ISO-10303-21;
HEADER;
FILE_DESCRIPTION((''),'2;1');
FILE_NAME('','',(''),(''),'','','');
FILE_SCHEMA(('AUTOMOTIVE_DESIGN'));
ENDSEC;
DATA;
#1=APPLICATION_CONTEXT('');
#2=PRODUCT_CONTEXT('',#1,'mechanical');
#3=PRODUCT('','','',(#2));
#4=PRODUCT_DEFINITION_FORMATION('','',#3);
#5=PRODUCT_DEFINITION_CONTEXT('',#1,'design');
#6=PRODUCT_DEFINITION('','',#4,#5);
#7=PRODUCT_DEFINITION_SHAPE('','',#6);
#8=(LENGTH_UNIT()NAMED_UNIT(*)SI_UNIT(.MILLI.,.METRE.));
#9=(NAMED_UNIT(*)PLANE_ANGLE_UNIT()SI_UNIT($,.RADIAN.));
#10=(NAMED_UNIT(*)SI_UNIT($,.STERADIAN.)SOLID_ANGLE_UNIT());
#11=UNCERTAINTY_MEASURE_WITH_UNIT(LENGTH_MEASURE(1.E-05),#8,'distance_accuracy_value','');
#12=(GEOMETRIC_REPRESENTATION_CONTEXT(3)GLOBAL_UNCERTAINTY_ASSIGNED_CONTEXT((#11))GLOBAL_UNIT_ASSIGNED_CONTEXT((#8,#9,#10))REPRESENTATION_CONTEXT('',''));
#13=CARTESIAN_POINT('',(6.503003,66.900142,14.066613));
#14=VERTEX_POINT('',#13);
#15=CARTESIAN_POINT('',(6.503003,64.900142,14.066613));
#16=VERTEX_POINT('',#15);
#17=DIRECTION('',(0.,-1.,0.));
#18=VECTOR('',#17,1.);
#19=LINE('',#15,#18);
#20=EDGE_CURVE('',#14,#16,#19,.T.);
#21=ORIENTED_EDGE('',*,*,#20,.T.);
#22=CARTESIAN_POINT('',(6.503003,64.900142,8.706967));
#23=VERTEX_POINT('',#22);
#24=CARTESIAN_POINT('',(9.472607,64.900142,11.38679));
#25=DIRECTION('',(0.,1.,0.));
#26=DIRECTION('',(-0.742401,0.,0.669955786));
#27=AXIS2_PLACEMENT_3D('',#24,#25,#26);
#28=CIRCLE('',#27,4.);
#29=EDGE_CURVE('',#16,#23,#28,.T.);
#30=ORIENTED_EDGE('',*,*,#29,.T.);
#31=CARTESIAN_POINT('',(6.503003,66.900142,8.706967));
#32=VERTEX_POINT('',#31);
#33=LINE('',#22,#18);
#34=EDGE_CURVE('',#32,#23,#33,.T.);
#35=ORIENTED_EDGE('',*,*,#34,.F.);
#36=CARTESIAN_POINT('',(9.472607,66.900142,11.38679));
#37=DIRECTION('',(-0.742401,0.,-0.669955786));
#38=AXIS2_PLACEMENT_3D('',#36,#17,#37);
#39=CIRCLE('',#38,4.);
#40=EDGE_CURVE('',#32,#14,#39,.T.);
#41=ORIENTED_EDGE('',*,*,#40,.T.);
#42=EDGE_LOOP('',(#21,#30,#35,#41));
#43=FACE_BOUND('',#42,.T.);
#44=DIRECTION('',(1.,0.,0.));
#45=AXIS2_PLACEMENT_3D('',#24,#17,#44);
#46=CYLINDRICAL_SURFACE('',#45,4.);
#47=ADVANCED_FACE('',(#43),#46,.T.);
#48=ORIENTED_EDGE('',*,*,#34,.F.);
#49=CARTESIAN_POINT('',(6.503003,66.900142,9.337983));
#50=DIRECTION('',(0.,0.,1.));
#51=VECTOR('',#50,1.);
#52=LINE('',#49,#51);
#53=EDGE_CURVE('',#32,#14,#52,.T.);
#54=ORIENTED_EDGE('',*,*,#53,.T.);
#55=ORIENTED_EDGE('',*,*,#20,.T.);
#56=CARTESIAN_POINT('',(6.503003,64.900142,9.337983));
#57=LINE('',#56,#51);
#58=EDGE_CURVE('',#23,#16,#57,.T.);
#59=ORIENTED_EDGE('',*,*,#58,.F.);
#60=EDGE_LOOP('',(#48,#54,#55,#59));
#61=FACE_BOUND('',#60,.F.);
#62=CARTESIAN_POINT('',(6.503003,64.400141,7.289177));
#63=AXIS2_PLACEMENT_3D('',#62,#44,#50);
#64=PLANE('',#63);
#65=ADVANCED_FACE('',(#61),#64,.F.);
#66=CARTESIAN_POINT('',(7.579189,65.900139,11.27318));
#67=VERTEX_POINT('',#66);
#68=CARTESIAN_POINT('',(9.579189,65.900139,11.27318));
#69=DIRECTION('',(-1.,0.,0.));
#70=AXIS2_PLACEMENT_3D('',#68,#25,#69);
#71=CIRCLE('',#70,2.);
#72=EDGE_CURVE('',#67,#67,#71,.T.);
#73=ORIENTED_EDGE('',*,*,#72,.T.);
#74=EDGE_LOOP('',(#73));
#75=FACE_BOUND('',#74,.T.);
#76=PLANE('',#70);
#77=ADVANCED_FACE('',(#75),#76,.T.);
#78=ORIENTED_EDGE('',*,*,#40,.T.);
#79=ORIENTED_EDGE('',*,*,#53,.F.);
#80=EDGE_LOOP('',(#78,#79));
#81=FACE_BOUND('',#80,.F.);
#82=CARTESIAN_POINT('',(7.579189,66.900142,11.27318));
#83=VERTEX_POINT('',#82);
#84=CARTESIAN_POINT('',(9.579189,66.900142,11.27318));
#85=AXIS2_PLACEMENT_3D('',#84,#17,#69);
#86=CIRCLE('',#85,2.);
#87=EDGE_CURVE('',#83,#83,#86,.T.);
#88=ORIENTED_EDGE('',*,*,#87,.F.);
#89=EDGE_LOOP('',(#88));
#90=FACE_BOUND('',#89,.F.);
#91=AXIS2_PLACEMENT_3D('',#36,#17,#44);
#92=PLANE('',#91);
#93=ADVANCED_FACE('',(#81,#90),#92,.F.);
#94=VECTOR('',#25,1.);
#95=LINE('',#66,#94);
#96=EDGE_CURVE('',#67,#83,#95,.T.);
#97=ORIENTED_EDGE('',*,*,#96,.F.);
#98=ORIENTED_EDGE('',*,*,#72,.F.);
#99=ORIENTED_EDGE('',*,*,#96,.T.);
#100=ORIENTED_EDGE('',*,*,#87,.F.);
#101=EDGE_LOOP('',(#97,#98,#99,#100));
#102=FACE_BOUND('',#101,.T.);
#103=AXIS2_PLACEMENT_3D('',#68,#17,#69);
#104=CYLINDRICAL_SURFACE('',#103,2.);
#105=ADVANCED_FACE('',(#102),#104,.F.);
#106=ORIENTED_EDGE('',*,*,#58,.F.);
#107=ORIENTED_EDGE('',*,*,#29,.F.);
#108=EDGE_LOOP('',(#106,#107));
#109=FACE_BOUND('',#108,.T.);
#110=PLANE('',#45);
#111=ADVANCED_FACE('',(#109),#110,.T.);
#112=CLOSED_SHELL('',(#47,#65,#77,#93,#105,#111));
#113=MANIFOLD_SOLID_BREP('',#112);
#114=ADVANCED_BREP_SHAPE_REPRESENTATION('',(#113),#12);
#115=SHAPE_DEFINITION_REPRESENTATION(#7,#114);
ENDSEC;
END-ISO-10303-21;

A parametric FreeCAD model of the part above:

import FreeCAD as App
import Part
import Sketcher
Q = App.Units.Quantity

doc = App.newDocument("Part")
params = doc.addObject("Spreadsheet::Sheet", "Params")
for row, (alias, value) in enumerate([
    ("sketch1_diameter", "4 mm"),
    ("pad1_length", "2 mm"),
    ("pad2_length", "3 mm"),
    ("sketch3_diameter", "8 mm"),
    ("pad3_length", "2 mm"),
], start=1):
    params.set(f"A{row}", alias)
    params.set(f"B{row}", "=" + value)
    params.setAlias(f"B{row}", alias)

body = doc.addObject("PartDesign::Body", "Body")

sketch1 = body.newObject("Sketcher::SketchObject", "Sketch")
sketch1.AttachmentSupport = (doc.getObject("XY_Plane"), [""])
sketch1.MapMode = "FlatFace"
sketch1.addGeometry(Part.Circle(App.Vector(0, 0, 0), App.Vector(0, 0, 1), 2), False)
sketch1.addConstraint([
    Sketcher.Constraint("Coincident", 0, 3, -1, 1),
    Sketcher.Constraint("Diameter", 0, Q("4 mm")),
])
sketch1.setExpression("Constraints[1]", "Params.sketch1_diameter")
pad1 = body.newObject("PartDesign::Pad", "Pad")
pad1.Profile = sketch1
pad1.setExpression("Length", "Params.pad1_length")
body2 = doc.addObject("PartDesign::Body", "Body001")
doc.recompute()

body.Placement = App.Placement(App.Vector(0, 0, 0), App.Rotation(App.Vector(1, 0, 0), 90))
boolean = body2.newObject("PartDesign::Boolean", "Boolean")
boolean.Type = "Fuse"
boolean.addObjects([body])
body3 = doc.addObject("PartDesign::Body", "Body002")
doc.recompute()

body2.Placement = App.Placement(App.Vector(9.579189, 64.900139, 11.27318), App.Rotation(App.Vector(0, 0, 1), 180))
boolean2 = body3.newObject("PartDesign::Boolean", "Boolean001")
boolean2.Type = "Fuse"
boolean2.addObjects([body2])
body4 = doc.addObject("PartDesign::Body", "Body003")
doc.recompute()

body3.Placement = App.Placement(App.Vector(0, 1, 0), App.Rotation(App.Vector(0, 0, 1), 0))
boolean3 = body4.newObject("PartDesign::Boolean", "Boolean002")
boolean3.Type = "Fuse"
boolean3.addObjects([body3])
body5 = doc.addObject("PartDesign::Body", "Body004")

sketch2 = body5.newObject("Sketcher::SketchObject", "Sketch001")
sketch2.AttachmentSupport = (doc.getObject("XY_Plane004"), [""])
sketch2.MapMode = "FlatFace"
sketch2.addGeometry([
    Part.LineSegment(App.Vector(-5, 0, 0), App.Vector(-5, -8, 0)),
    Part.LineSegment(App.Vector(-5, -8, 0), App.Vector(0, -8, 0)),
    Part.LineSegment(App.Vector(0, -8, 0), App.Vector(0, 0, 0)),
    Part.LineSegment(App.Vector(0, 0, 0), App.Vector(-5, 0, 0)),
], False)
sketch2.addConstraint([
    Sketcher.Constraint("Coincident", 0, 2, 1, 1),
    Sketcher.Constraint("Coincident", 1, 2, 2, 1),
    Sketcher.Constraint("Coincident", 2, 2, 3, 1),
    Sketcher.Constraint("Coincident", 3, 2, 0, 1),
    Sketcher.Constraint("Vertical", 0),
    Sketcher.Constraint("Horizontal", 1),
    Sketcher.Constraint("Vertical", 2),
    Sketcher.Constraint("Horizontal", 3),
    Sketcher.Constraint("Coincident", 2, 2, -1, 1),
    Sketcher.Constraint("DistanceX", 1, 1, 1, 2, Q("5.41291 mm")),
    Sketcher.Constraint("DistanceY", 0, 2, 0, 1, Q("8.044928 mm")),
])
pad2 = body5.newObject("PartDesign::Pad", "Pad001")
pad2.Profile = sketch2
pad2.setExpression("Length", "Params.pad2_length")
pad2.Reversed = True
body6 = doc.addObject("PartDesign::Body", "Body005")
doc.recompute()

body5.Placement = App.Placement(App.Vector(0, 0, 0), App.Rotation(App.Vector(1, 0, 0), 90))
boolean4 = body6.newObject("PartDesign::Boolean", "Boolean003")
boolean4.Type = "Fuse"
boolean4.addObjects([body5])
body7 = doc.addObject("PartDesign::Body", "Body006")
doc.recompute()

body6.Placement = App.Placement(App.Vector(56.902615, 1.09014, 40.499655), App.Rotation(App.Vector(0, 0, 1), 0))
boolean5 = body7.newObject("PartDesign::Boolean", "Boolean004")
boolean5.Type = "Fuse"
boolean5.addObjects([body6])
body8 = doc.addObject("PartDesign::Body", "Body007")
doc.recompute()

body7.Placement = App.Placement(App.Vector(0, -0.5, 0), App.Rotation(App.Vector(0, 0, 1), 0))
boolean6 = body8.newObject("PartDesign::Boolean", "Boolean005")
boolean6.Type = "Fuse"
boolean6.addObjects([body7])
body9 = doc.addObject("PartDesign::Body", "Body008")

sketch3 = body9.newObject("Sketcher::SketchObject", "Sketch002")
sketch3.AttachmentSupport = (doc.getObject("XY_Plane008"), [""])
sketch3.MapMode = "FlatFace"
sketch3.addGeometry(Part.Circle(App.Vector(0, 0, 0), App.Vector(0, 0, 1), 4), False)
sketch3.addConstraint([
    Sketcher.Constraint("Coincident", 0, 3, -1, 1),
    Sketcher.Constraint("Diameter", 0, Q("8 mm")),
])
sketch3.setExpression("Constraints[1]", "Params.sketch3_diameter")
pad3 = body9.newObject("PartDesign::Pad", "Pad002")
pad3.Profile = sketch3
pad3.setExpression("Length", "Params.pad3_length")
pad3.Reversed = True
body10 = doc.addObject("PartDesign::Body", "Body009")
doc.recompute()

body9.Placement = App.Placement(App.Vector(0, 0, 0), App.Rotation(App.Vector(1, 0, 0), 90))
boolean7 = body10.newObject("PartDesign::Boolean", "Boolean006")
boolean7.Type = "Fuse"
boolean7.addObjects([body9])
body11 = doc.addObject("PartDesign::Body", "Body010")
doc.recompute()

body10.Placement = App.Placement(App.Vector(59.872219, 1.090141, 36.55234), App.Rotation(App.Vector(0, 0, 1), 0))
boolean8 = body11.newObject("PartDesign::Boolean", "Boolean007")
boolean8.Type = "Fuse"
boolean8.addObjects([body10])
doc.recompute()

boolean9 = body11.newObject("PartDesign::Boolean", "Boolean008")
boolean9.Type = "Cut"
boolean9.addObjects([body8])
body12 = doc.addObject("PartDesign::Body", "Body011")
doc.recompute()

body11.Placement = App.Placement(App.Vector(-50.399612, 63.810001, -25.16555), App.Rotation(App.Vector(0, 0, 1), 0))
boolean10 = body12.newObject("PartDesign::Boolean", "Boolean009")
boolean10.Type = "Fuse"
boolean10.addObjects([body11])
doc.recompute()

boolean11 = body12.newObject("PartDesign::Boolean", "Boolean010")
boolean11.Type = "Cut"
boolean11.addObjects([body4])

doc.recompute()
